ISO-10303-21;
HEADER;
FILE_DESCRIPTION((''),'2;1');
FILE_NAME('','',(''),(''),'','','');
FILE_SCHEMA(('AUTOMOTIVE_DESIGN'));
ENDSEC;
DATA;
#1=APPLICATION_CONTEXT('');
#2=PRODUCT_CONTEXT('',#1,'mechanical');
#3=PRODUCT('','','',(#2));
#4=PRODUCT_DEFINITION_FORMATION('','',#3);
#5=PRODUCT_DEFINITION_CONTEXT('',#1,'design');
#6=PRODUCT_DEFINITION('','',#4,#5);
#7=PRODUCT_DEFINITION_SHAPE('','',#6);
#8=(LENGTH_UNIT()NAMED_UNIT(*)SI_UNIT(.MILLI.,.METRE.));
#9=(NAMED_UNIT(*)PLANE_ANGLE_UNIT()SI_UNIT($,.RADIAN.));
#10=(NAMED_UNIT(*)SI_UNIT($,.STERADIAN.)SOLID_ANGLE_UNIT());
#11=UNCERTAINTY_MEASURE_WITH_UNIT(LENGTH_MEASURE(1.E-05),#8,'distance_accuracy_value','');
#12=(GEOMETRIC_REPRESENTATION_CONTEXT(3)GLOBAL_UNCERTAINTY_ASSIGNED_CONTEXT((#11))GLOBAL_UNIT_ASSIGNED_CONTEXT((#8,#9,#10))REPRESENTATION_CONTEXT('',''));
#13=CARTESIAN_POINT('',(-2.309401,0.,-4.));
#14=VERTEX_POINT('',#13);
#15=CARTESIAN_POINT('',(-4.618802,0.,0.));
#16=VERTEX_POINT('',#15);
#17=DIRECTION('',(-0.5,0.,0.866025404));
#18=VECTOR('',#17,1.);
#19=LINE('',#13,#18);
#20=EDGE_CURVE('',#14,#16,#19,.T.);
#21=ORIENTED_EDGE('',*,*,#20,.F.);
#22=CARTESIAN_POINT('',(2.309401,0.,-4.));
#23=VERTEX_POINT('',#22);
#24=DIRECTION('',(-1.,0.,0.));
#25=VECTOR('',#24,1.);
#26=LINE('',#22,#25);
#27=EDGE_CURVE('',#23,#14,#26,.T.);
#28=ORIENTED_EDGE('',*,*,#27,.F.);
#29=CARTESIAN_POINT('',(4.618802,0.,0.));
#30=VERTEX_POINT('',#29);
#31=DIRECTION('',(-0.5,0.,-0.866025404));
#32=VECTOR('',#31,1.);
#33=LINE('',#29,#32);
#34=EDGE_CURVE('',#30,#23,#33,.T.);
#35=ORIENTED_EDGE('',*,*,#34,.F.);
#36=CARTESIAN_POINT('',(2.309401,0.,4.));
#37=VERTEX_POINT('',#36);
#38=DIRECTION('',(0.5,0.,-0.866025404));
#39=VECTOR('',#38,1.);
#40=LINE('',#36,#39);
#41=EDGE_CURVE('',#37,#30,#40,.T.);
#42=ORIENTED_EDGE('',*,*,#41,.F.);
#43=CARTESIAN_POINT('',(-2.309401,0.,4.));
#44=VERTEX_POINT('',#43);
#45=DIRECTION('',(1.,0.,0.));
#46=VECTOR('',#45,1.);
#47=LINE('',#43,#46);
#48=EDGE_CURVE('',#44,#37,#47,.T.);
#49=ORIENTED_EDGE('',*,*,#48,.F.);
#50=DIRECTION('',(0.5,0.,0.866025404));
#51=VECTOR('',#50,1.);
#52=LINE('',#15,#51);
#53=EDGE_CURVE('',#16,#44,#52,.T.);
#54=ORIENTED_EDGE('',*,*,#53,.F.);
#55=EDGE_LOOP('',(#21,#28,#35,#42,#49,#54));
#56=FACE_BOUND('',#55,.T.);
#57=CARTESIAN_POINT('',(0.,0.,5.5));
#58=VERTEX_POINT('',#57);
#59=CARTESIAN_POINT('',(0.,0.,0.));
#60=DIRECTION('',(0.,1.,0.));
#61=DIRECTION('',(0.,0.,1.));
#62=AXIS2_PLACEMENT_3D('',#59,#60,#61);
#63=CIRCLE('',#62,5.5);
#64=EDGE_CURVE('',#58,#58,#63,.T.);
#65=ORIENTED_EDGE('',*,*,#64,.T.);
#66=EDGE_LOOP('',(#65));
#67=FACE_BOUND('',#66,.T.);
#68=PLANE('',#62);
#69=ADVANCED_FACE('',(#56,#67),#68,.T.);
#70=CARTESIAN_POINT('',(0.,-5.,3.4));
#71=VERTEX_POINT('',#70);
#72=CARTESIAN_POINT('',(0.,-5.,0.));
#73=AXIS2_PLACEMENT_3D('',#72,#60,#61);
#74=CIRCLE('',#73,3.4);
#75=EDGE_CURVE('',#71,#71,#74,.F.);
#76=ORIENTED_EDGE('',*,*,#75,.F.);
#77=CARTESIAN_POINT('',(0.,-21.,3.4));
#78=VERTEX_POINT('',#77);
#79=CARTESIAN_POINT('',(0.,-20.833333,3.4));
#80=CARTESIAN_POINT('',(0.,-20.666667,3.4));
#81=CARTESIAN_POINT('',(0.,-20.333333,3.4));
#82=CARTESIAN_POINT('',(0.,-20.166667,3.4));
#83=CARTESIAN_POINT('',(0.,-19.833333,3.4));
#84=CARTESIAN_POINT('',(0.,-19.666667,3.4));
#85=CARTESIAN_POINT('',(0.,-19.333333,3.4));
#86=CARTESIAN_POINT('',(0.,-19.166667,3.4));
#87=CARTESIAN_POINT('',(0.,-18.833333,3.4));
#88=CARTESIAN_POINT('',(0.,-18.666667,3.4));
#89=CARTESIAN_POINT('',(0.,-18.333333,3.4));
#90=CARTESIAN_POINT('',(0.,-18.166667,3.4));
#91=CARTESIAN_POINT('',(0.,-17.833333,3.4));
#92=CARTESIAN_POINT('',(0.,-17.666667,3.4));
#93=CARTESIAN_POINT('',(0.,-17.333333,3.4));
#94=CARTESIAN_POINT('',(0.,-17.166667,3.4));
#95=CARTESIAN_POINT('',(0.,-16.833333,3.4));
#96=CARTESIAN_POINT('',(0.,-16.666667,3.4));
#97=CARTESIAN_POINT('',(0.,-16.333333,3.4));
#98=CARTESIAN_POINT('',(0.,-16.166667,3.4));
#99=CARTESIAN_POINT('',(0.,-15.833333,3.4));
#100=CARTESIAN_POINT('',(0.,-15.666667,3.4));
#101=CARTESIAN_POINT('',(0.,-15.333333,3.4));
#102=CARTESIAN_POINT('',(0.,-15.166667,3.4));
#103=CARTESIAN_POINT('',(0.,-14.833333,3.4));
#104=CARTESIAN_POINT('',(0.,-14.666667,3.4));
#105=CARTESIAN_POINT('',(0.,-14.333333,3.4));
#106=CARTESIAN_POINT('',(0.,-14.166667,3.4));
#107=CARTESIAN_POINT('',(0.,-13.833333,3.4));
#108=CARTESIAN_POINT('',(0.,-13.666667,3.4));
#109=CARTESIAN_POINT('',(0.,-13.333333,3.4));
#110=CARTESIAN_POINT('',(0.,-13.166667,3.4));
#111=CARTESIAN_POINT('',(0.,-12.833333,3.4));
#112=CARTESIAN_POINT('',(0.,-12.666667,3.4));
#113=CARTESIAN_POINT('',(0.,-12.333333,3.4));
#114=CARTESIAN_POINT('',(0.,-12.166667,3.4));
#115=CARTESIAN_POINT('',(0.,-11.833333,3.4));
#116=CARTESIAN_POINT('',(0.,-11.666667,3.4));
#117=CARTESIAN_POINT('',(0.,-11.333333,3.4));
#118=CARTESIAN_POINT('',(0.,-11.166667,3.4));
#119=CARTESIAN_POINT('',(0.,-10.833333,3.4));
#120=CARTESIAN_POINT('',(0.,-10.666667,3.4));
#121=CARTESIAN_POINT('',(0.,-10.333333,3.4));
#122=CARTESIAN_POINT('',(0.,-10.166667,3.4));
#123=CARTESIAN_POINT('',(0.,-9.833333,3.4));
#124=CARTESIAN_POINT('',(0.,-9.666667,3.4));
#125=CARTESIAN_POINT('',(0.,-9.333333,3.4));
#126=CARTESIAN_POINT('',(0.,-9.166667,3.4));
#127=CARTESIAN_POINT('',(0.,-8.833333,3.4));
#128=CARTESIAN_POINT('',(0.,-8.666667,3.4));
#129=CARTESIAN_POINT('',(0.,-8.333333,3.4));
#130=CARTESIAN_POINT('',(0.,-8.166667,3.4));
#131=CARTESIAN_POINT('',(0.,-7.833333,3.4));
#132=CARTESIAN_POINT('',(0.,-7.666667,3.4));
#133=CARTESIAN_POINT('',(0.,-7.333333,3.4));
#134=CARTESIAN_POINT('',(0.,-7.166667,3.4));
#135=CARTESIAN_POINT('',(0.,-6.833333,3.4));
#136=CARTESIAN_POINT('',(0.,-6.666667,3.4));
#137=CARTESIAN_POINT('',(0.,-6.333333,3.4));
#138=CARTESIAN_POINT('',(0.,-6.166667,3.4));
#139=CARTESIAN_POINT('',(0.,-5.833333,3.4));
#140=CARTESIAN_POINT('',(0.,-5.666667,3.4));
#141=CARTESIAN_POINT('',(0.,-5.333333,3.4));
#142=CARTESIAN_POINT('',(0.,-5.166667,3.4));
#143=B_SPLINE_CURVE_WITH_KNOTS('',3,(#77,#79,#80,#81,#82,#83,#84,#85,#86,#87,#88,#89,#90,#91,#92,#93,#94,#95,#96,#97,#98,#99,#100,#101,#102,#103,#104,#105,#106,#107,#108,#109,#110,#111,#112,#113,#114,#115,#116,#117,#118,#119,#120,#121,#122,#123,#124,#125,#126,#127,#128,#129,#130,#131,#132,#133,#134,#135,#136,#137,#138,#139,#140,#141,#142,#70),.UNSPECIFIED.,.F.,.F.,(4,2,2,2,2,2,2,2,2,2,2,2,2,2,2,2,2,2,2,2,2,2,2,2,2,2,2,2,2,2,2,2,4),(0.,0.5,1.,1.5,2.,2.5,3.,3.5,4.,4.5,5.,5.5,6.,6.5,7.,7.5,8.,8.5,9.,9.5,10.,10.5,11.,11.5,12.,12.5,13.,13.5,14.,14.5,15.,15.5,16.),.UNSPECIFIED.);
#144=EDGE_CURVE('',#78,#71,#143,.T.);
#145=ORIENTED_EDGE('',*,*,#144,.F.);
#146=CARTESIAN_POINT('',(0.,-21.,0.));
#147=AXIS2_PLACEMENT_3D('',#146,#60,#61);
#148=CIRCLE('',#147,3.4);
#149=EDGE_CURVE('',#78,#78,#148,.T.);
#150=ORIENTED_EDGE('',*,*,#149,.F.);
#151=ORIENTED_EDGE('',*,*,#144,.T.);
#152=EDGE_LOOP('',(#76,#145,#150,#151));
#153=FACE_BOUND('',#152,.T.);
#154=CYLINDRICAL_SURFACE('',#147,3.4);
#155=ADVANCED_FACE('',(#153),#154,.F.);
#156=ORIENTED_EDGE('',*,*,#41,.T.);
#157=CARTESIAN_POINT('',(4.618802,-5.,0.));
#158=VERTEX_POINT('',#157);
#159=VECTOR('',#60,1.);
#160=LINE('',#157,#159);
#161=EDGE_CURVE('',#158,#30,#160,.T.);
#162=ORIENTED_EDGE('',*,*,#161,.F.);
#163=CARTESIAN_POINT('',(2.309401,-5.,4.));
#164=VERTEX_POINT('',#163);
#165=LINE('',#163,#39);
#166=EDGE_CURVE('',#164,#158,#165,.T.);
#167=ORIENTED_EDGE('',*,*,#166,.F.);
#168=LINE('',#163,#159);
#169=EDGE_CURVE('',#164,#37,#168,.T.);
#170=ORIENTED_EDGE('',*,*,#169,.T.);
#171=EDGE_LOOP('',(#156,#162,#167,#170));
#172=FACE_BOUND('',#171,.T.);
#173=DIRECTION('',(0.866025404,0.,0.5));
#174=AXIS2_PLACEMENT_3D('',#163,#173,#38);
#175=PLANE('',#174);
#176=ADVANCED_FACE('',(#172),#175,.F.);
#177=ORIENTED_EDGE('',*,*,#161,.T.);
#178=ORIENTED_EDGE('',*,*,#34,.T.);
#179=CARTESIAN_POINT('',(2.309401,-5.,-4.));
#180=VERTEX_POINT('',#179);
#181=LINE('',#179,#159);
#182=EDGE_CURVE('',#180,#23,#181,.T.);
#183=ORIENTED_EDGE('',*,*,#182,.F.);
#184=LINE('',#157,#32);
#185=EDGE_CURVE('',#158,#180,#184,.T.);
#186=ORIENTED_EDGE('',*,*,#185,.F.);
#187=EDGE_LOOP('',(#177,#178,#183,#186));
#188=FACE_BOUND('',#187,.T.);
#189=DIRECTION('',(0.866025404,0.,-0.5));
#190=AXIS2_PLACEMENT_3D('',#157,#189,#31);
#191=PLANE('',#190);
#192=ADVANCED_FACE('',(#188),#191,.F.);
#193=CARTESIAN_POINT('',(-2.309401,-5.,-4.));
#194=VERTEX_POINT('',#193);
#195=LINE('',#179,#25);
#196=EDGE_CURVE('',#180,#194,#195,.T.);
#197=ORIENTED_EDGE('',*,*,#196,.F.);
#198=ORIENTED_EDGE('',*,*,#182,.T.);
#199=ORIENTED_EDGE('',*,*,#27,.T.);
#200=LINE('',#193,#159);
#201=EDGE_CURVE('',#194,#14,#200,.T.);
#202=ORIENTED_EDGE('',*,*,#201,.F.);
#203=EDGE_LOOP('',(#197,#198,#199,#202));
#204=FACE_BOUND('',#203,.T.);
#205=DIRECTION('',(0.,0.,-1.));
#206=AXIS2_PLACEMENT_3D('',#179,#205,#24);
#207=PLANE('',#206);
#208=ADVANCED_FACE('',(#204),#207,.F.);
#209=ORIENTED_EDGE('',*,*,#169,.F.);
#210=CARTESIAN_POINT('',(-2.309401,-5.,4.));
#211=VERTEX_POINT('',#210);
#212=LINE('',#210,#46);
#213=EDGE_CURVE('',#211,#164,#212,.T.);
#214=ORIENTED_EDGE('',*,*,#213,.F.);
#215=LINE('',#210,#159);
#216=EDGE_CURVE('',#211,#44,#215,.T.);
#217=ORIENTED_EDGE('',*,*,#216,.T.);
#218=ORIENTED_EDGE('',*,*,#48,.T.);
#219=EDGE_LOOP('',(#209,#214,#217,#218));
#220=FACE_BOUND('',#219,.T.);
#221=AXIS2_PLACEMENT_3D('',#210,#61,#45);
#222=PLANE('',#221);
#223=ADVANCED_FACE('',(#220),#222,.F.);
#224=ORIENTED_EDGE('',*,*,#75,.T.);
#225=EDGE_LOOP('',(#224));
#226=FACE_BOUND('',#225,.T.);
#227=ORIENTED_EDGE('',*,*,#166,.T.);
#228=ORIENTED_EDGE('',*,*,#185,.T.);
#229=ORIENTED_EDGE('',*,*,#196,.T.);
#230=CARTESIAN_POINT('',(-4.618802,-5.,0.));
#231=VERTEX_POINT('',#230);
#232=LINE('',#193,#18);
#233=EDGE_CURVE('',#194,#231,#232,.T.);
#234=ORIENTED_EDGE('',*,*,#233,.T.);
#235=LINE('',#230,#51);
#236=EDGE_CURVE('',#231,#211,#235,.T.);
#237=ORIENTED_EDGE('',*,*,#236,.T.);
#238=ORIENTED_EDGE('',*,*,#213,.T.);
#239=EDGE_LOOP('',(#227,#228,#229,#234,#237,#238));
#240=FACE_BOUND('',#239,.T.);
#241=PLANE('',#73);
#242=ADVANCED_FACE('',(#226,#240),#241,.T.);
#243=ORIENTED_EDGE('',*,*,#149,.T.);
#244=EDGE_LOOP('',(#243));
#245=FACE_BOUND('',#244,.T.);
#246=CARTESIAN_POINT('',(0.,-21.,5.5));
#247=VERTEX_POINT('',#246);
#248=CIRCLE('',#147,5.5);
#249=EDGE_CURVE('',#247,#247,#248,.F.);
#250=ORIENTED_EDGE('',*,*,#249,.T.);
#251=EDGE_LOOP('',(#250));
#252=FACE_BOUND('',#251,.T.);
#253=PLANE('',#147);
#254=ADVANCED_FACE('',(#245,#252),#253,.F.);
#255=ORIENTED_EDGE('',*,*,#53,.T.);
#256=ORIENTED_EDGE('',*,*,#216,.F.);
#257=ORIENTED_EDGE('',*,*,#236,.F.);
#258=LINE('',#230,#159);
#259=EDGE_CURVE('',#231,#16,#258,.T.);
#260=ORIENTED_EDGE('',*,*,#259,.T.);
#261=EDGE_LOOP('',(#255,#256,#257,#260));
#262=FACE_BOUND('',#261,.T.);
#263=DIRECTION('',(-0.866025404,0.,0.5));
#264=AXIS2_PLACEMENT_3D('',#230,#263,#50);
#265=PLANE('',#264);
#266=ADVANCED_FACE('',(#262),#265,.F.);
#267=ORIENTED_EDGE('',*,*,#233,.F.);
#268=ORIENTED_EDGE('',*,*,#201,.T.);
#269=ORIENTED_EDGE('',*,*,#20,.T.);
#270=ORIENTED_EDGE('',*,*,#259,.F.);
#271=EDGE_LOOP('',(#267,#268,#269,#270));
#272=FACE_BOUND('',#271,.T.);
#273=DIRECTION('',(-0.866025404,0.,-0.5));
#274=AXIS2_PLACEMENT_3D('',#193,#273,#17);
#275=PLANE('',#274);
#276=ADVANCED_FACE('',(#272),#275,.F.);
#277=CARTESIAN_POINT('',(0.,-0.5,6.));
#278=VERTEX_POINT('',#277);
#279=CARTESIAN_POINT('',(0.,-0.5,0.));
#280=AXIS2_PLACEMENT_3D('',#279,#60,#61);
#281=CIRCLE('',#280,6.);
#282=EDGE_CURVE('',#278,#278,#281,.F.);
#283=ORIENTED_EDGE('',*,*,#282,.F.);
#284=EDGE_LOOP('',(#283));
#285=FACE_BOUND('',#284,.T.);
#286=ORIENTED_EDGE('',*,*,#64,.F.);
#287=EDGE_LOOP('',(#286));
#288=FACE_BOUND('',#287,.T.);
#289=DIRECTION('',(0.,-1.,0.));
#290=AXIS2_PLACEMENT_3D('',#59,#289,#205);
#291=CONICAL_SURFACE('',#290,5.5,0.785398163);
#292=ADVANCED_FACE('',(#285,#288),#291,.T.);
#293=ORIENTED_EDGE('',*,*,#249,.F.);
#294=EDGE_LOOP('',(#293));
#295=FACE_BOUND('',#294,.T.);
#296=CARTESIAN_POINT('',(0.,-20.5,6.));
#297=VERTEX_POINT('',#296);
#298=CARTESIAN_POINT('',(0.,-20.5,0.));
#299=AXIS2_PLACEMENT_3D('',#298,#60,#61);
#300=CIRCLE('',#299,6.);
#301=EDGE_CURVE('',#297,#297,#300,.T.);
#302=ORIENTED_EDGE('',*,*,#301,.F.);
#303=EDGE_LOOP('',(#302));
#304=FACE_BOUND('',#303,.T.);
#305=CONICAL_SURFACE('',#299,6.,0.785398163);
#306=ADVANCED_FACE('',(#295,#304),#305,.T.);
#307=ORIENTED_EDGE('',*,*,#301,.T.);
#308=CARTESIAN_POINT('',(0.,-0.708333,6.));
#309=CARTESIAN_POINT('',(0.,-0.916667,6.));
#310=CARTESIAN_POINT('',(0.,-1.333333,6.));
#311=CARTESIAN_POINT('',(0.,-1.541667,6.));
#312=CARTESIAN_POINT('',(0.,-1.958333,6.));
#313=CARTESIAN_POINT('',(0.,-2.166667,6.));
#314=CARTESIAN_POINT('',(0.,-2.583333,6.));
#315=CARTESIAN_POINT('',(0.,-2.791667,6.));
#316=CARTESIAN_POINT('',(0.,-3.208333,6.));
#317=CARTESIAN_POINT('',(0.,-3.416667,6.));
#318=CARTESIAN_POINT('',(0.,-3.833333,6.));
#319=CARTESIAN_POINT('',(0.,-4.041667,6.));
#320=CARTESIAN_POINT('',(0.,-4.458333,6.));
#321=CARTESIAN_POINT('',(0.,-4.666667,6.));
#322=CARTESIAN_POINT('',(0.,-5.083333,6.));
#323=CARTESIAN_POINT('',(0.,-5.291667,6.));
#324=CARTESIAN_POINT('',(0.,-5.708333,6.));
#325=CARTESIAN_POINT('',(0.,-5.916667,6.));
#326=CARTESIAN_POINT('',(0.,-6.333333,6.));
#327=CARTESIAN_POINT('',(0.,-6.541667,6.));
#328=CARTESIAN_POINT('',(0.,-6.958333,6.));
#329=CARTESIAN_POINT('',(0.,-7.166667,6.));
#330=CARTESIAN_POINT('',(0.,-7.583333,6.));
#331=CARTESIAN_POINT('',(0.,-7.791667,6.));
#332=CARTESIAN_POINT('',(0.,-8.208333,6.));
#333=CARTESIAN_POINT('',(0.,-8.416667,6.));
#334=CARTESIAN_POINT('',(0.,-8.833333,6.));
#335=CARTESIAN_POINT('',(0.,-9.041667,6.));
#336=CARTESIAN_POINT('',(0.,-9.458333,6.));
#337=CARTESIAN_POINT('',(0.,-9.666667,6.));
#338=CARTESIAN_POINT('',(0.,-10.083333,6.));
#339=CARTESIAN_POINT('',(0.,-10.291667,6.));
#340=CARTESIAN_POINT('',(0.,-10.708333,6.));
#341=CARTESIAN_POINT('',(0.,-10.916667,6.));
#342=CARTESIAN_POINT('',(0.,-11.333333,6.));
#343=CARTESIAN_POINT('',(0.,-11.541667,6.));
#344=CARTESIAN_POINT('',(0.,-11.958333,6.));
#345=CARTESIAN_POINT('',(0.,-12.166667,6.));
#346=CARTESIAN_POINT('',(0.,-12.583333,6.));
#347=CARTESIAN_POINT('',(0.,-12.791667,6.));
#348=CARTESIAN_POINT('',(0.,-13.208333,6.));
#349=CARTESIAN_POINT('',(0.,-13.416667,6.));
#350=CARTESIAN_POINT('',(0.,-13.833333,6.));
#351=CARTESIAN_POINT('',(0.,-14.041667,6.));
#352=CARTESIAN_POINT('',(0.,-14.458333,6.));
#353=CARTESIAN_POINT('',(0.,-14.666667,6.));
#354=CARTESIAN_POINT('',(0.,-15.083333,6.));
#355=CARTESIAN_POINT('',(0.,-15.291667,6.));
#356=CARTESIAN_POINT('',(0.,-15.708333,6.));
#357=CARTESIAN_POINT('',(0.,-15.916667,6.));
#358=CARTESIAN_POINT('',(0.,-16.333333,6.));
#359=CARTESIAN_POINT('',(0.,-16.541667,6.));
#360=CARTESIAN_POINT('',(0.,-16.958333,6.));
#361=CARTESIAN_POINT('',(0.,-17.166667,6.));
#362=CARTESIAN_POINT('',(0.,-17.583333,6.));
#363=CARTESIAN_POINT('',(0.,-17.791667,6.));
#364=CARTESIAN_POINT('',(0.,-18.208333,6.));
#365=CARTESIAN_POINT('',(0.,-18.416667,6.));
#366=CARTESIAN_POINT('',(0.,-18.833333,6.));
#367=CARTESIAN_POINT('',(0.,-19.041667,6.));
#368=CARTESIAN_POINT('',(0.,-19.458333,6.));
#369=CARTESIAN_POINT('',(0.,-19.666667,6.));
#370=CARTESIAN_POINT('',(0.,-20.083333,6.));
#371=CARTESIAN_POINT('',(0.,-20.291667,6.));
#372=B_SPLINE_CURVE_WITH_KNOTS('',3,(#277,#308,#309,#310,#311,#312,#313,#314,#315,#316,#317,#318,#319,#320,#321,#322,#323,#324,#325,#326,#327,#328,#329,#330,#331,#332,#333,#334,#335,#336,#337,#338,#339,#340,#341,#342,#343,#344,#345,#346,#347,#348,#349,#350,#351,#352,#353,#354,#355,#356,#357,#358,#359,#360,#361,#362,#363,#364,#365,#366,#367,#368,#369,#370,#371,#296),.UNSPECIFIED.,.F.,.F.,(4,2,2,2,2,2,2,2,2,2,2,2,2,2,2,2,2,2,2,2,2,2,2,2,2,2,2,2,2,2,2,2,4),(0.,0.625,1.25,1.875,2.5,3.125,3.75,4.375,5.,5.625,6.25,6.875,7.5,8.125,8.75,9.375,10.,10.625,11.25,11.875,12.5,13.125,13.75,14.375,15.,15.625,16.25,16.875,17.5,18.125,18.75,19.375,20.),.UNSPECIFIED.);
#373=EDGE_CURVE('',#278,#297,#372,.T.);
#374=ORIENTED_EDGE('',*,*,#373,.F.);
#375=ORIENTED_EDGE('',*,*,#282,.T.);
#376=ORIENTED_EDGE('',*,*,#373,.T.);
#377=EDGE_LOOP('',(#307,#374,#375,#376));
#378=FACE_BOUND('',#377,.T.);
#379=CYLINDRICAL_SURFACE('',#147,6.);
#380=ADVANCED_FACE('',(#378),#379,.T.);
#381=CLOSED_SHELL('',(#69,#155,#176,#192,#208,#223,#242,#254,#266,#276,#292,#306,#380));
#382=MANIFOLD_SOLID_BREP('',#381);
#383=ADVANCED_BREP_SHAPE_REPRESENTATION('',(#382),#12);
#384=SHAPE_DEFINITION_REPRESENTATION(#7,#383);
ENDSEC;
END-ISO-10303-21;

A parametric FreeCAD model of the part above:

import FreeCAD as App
import Part
import Sketcher
from FreeCAD import Vector
Q = App.Units.Quantity


def edges_at(feature, points):
    """Names of the edges that pass closest to the given points."""
    edges = feature.Shape.Edges
    near = lambda p: min(range(len(edges)), key=lambda i: edges[i].distToShape(Part.Vertex(*p))[0])
    return sorted({f"Edge{near(p) + 1}" for p in points})

doc = App.newDocument("Part")
body = doc.addObject("PartDesign::Body", "Body")

# Sketch on XZ plane
sketch1 = body.newObject("Sketcher::SketchObject", "Sketch")
sketch1.AttachmentSupport = (doc.getObject("XZ_Plane"), [""])
sketch1.MapMode = "FlatFace"
sketch1.addGeometry(Part.Circle(Vector(0, 0, 0), Vector(0, 0, 1), 6), False)
sketch1.addConstraint([
    Sketcher.Constraint("Coincident", 0, 3, -1, 1),
    Sketcher.Constraint("Diameter", 0, Q("12 mm")),
])
pad1 = body.newObject("PartDesign::Pad", "Pad")
pad1.Profile = sketch1
pad1.Length = 21

# Sketch on XZ plane
sketch2 = body.newObject("Sketcher::SketchObject", "Sketch001")
sketch2.AttachmentSupport = (doc.getObject("XZ_Plane"), [""])
sketch2.MapMode = "FlatFace"
sketch2.addGeometry(Part.Circle(Vector(0, 0, 0), Vector(0, 0, 1), 3.4), False)
sketch2.addConstraint([
    Sketcher.Constraint("Coincident", 0, 3, -1, 1),
    Sketcher.Constraint("Diameter", 0, Q("6.8 mm")),
])
pocket1 = body.newObject("PartDesign::Pocket", "Pocket")
pocket1.Profile = sketch2
pocket1.Type = "ThroughAll"
pocket1.Reversed = True

# Sketch on XZ plane
sketch3 = body.newObject("Sketcher::SketchObject", "Sketch002")
sketch3.AttachmentSupport = (doc.getObject("XZ_Plane"), [""])
sketch3.MapMode = "FlatFace"
sketch3.addGeometry([
    Part.LineSegment(Vector(4.6, 0, 0), Vector(2.3, -4, 0)),  # 0
    Part.LineSegment(Vector(2.3, -4, 0), Vector(-2.3, -4, 0)),  # 1
    Part.LineSegment(Vector(-2.3, -4, 0), Vector(-4.6, 0, 0)),  # 2
    Part.LineSegment(Vector(-4.6, 0, 0), Vector(-2.3, 4, 0)),  # 3
    Part.LineSegment(Vector(-2.3, 4, 0), Vector(2.3, 4, 0)),  # 4
    Part.LineSegment(Vector(2.3, 4, 0), Vector(4.6, 0, 0)),  # 5
], False)
sketch3.addConstraint([
    Sketcher.Constraint("Coincident", 0, 2, 1, 1),
    Sketcher.Constraint("Coincident", 1, 2, 2, 1),
    Sketcher.Constraint("Coincident", 2, 2, 3, 1),
    Sketcher.Constraint("Coincident", 3, 2, 4, 1),
    Sketcher.Constraint("Coincident", 4, 2, 5, 1),
    Sketcher.Constraint("Coincident", 5, 2, 0, 1),
    Sketcher.Constraint("Horizontal", 1),
    Sketcher.Constraint("Horizontal", 4),
    Sketcher.Constraint("Symmetric", 0, 2, 3, 2, -1, 1),
    Sketcher.Constraint("Symmetric", 2, 2, 5, 2, -1, 1),
    Sketcher.Constraint("PointOnObject", 2, 2, -1),
    Sketcher.Constraint("Parallel", 2, 5),
    Sketcher.Constraint("Vertical", 1, 2, 3, 2),
    Sketcher.Constraint("Angle", 0, Q("-120 deg")),
    Sketcher.Constraint("DistanceY", 0, 2, -1, 1, Q("4 mm")),
    Sketcher.Constraint("DistanceX", -1, 1, 0, 2, Q("2.309401 mm")),
])
pocket2 = body.newObject("PartDesign::Pocket", "Pocket001")
pocket2.Profile = sketch3
pocket2.Length = 5
pocket2.Reversed = True
doc.recompute()

chamfer = body.newObject("PartDesign::Chamfer", "Chamfer")
chamfer.Base = (pocket2, edges_at(pocket2, [(0, 0, -6), (0, -21, -6)]))
chamfer.Size = 0.5

doc.recompute()
